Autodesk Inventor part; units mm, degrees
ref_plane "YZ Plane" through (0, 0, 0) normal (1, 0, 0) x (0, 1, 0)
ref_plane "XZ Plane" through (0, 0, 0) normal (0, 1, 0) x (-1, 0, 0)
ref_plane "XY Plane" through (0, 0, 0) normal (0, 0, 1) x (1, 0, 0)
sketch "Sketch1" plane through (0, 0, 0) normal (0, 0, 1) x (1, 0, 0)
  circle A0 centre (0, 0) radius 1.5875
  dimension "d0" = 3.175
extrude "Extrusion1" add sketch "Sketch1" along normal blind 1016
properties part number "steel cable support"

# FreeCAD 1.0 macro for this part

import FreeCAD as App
import Part
import Sketcher

V = App.Vector
Q = App.Units.Quantity

doc = App.newDocument("Part")
params = doc.addObject("Spreadsheet::Sheet", "Params")
for row, (alias, value) in enumerate([
    ("sketch1_diameter", "0.125 in"),
    ("pad1_length", "40 in"),
], start=1):
    params.set(f"A{row}", alias)
    params.set(f"B{row}", "=" + value)
    params.setAlias(f"B{row}", alias)

body = doc.addObject("PartDesign::Body", "Body")

# Sketch on XY plane
sketch1 = doc.addObject("Sketcher::SketchObject", "Sketch")
body.addObject(sketch1)
sketch1.AttachmentSupport = (doc.XY_Plane, [""])
sketch1.MapMode = "FlatFace"
sketch1.addGeometry(Part.Circle(V(0, 0, 0), V(0, 0, 1), 1.6), False)
sketch1.addConstraint([
    Sketcher.Constraint("Coincident", 0, 3, -1, 1),
    Sketcher.Constraint("Diameter", 0, Q("0.125 in")),
])
sketch1.setExpression("Constraints[1]", "Params.sketch1_diameter")
pad1 = doc.addObject("PartDesign::Pad", "Pad")
body.addObject(pad1)
pad1.Profile = sketch1
pad1.setExpression("Length", "Params.pad1_length")

doc.recompute()
